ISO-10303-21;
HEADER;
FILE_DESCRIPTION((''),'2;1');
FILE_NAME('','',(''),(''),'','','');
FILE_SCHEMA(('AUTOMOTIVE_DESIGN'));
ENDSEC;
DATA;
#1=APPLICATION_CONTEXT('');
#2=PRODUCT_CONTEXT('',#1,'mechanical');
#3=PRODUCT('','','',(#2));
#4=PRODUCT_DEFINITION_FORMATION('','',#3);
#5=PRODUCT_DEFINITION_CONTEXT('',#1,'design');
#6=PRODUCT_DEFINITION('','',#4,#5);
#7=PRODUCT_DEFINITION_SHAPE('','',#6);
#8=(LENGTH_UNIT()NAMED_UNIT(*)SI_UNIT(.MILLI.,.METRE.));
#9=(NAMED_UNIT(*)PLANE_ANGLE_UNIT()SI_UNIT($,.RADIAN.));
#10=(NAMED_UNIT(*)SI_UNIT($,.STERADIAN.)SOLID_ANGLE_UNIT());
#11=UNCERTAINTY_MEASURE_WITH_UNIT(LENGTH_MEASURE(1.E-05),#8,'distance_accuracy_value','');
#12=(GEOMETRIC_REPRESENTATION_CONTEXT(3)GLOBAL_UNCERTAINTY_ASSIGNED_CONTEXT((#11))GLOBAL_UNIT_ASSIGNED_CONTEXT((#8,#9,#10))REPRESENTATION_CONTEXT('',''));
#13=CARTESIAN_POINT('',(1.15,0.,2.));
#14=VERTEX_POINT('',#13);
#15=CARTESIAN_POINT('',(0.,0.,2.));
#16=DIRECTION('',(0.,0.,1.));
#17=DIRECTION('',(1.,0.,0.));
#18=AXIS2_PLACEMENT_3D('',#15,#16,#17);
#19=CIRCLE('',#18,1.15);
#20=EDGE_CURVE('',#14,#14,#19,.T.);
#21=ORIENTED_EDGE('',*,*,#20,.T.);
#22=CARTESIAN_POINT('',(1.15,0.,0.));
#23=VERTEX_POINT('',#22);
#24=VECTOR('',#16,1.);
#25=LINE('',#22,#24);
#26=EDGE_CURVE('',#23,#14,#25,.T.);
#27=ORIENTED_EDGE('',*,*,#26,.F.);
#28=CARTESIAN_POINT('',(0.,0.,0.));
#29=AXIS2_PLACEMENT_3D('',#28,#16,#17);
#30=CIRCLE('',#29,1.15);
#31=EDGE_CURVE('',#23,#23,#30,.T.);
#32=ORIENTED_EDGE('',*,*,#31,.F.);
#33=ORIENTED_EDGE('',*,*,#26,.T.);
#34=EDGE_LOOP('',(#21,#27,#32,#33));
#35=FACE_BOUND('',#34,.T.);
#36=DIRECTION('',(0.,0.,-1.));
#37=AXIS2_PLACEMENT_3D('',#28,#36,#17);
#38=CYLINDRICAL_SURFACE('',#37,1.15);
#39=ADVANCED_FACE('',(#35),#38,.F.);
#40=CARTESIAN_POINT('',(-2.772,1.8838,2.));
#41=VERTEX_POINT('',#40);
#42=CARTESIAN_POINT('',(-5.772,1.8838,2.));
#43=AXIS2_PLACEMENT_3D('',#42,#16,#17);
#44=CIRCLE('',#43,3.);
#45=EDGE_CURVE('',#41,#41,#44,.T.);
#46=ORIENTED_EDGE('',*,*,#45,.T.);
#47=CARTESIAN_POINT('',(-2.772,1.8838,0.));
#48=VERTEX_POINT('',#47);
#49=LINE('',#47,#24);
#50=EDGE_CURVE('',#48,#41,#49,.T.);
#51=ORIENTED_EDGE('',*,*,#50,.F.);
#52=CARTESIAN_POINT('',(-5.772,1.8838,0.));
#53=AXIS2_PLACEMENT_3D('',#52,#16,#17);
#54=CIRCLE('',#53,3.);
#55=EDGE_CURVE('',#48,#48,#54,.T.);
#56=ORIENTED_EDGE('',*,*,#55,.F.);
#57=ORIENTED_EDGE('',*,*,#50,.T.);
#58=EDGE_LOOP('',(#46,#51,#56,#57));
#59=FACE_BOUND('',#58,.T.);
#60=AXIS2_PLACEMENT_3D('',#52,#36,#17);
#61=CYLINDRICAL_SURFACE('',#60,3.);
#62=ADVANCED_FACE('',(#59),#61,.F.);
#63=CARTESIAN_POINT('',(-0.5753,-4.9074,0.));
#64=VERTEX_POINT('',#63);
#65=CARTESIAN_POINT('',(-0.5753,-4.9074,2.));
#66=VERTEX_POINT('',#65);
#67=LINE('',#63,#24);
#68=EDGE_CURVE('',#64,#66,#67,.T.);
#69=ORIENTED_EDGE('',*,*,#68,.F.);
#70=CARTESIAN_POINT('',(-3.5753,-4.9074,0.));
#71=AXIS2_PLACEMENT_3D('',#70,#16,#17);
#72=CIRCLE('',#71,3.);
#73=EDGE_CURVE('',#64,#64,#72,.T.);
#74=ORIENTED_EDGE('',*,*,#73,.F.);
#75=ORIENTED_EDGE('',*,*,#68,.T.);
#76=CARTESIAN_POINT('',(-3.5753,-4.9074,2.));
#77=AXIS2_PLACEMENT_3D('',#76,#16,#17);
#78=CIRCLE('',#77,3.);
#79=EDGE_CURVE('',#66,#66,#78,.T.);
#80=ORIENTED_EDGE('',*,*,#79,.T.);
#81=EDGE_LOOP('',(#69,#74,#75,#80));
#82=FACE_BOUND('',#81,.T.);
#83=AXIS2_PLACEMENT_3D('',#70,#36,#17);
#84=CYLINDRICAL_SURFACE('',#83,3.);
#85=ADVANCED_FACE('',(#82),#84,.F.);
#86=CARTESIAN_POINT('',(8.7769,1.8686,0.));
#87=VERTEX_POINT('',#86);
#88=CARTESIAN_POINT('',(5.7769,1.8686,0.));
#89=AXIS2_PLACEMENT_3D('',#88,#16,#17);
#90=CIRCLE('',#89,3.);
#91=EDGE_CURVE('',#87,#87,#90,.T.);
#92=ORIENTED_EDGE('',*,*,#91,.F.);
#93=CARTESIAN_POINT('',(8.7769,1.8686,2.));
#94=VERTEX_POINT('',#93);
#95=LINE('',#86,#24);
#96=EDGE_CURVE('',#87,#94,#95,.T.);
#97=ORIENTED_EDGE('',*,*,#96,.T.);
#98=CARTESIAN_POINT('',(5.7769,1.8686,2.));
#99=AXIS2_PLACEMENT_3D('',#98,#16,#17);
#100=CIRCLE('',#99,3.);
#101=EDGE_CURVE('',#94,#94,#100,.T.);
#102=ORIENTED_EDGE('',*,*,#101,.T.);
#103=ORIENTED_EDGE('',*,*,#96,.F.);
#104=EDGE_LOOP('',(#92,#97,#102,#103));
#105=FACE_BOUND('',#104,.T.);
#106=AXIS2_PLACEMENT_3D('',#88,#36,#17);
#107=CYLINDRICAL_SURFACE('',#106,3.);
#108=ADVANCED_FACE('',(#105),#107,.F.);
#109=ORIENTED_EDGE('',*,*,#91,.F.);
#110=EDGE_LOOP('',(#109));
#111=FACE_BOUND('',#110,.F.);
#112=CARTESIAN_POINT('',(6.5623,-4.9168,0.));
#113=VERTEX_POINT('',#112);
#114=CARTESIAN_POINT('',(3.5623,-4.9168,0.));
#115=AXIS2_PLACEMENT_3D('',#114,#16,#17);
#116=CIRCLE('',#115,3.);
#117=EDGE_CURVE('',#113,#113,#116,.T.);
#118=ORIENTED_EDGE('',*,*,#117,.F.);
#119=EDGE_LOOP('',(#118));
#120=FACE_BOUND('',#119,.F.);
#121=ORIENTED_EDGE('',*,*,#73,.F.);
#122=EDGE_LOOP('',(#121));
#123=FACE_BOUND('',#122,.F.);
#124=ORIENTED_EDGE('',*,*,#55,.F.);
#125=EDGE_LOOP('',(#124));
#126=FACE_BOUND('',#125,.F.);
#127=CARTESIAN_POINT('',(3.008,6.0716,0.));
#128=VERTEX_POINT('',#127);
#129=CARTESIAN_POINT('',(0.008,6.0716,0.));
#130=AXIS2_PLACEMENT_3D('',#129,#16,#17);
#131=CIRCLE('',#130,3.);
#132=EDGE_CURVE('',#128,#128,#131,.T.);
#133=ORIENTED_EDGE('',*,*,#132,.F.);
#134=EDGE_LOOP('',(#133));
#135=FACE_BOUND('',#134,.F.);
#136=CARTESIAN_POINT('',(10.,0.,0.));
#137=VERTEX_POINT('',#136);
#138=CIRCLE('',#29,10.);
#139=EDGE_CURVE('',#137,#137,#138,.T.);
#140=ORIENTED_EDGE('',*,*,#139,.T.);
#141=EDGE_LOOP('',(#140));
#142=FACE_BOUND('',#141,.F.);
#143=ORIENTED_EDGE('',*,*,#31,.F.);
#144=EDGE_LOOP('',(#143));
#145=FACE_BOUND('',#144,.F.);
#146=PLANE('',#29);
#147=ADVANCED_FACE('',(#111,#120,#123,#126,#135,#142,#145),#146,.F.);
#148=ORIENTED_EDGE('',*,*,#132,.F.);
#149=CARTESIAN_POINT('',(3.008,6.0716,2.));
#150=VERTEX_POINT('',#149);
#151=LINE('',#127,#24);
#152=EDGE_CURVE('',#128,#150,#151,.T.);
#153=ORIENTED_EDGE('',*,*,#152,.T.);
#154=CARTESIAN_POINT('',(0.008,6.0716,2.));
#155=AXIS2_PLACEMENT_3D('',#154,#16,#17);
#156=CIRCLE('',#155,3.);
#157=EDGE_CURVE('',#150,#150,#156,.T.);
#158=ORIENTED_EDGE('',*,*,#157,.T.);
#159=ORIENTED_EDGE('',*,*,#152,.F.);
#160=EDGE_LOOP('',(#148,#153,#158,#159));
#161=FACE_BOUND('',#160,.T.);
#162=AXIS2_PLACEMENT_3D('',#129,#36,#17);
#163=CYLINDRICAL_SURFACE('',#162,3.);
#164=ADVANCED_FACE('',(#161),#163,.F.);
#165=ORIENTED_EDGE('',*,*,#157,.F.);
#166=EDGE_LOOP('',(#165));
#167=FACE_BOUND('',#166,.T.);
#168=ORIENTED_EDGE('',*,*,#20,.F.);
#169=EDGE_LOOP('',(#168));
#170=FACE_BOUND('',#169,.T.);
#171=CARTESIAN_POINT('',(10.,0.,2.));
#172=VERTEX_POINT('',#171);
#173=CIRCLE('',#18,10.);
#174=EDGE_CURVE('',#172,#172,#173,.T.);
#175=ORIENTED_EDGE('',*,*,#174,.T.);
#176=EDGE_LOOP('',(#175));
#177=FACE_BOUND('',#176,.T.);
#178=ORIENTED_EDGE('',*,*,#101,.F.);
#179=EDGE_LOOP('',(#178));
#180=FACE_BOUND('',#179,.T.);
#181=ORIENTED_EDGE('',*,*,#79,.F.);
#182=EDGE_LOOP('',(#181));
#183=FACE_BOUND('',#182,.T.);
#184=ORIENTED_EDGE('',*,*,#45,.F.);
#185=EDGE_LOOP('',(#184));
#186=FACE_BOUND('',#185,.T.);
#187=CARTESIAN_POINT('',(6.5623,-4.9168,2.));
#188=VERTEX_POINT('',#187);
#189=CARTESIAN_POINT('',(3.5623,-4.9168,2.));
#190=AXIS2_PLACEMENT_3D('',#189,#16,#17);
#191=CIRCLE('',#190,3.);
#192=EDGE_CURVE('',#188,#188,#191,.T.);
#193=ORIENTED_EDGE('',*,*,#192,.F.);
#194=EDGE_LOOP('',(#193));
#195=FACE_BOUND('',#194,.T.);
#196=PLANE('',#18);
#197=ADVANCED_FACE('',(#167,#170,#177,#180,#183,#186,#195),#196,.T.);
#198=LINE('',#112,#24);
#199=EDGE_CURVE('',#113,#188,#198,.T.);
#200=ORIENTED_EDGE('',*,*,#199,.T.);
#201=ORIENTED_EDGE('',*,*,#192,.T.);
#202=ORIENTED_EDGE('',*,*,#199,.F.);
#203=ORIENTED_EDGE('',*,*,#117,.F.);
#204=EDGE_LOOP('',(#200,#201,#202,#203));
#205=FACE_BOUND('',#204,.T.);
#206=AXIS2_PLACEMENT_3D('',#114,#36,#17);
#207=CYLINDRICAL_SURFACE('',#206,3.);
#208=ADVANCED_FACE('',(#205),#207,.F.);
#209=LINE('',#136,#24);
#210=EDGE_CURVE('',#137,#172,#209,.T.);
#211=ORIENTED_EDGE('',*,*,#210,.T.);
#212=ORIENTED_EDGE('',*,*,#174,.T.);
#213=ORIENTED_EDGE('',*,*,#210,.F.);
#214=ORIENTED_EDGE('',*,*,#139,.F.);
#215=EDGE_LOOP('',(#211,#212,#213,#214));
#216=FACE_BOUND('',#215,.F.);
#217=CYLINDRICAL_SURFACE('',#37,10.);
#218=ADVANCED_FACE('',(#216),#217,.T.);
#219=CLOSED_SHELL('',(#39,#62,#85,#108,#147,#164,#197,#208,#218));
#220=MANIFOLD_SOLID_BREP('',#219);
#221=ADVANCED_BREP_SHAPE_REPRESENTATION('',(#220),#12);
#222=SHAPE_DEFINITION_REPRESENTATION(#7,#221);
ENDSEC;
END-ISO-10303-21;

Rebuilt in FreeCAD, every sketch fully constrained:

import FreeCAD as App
import Part
import Sketcher

doc = App.newDocument("Part")
body = doc.addObject("PartDesign::Body", "Body")

sketch1 = body.newObject("Sketcher::SketchObject", "Sketch")
sketch1.AttachmentSupport = (doc.getObject("XY_Plane"), [""])
sketch1.MapMode = "FlatFace"
sketch1.addGeometry([
    Part.Circle(App.Vector(0, 0, 0), App.Vector(0, 0, 1), 10),
    Part.Circle(App.Vector(-3.6, -4.9, 0), App.Vector(0, 0, 1), 3),
    Part.Circle(App.Vector(3.6, -4.9, 0), App.Vector(0, 0, 1), 3),
    Part.Circle(App.Vector(-5.8, 1.9, 0), App.Vector(0, 0, 1), 3),
    Part.Circle(App.Vector(0, 0, 0), App.Vector(0, 0, 1), 1.1),
    Part.Circle(App.Vector(5.8, 1.9, 0), App.Vector(0, 0, 1), 3),
    Part.Circle(App.Vector(0, 6.1, 0), App.Vector(0, 0, 1), 3),
], False)
sketch1.addConstraint([
    Sketcher.Constraint("Coincident", 0, 3, -1, 1),
    Sketcher.Constraint("Coincident", 4, 3, -1, 1),
    Sketcher.Constraint("Equal", 1, 2),
    Sketcher.Constraint("Equal", 2, 3),
    Sketcher.Constraint("Equal", 3, 5),
    Sketcher.Constraint("Equal", 5, 6),
    Sketcher.Constraint("Diameter", 0, 20.0),
    Sketcher.Constraint("Diameter", 1, 6.0),
    Sketcher.Constraint("Diameter", 4, 2.3),
    Sketcher.Constraint("DistanceX", 3, 3, 6, 3, 5.78),
    Sketcher.Constraint("DistanceX", 3, 3, -1, 1, 5.772),
    Sketcher.Constraint("DistanceX", -1, 1, 5, 3, 5.777),
    Sketcher.Constraint("DistanceY", 1, 3, 5, 3, 6.776),
    Sketcher.Constraint("DistanceY", 5, 3, 6, 3, 4.203),
    Sketcher.Constraint("DistanceX", 1, 3, -1, 1, 3.5753),
    Sketcher.Constraint("DistanceY", 1, 3, -1, 1, 4.9074),
    Sketcher.Constraint("DistanceX", -1, 1, 2, 3, 3.5623),
    Sketcher.Constraint("DistanceY", 2, 3, -1, 1, 4.9168),
    Sketcher.Constraint("DistanceY", -1, 1, 3, 3, 1.8838),
])
pad1 = body.newObject("PartDesign::Pad", "Pad")
pad1.Profile = sketch1
pad1.Length = 2

doc.recompute()
